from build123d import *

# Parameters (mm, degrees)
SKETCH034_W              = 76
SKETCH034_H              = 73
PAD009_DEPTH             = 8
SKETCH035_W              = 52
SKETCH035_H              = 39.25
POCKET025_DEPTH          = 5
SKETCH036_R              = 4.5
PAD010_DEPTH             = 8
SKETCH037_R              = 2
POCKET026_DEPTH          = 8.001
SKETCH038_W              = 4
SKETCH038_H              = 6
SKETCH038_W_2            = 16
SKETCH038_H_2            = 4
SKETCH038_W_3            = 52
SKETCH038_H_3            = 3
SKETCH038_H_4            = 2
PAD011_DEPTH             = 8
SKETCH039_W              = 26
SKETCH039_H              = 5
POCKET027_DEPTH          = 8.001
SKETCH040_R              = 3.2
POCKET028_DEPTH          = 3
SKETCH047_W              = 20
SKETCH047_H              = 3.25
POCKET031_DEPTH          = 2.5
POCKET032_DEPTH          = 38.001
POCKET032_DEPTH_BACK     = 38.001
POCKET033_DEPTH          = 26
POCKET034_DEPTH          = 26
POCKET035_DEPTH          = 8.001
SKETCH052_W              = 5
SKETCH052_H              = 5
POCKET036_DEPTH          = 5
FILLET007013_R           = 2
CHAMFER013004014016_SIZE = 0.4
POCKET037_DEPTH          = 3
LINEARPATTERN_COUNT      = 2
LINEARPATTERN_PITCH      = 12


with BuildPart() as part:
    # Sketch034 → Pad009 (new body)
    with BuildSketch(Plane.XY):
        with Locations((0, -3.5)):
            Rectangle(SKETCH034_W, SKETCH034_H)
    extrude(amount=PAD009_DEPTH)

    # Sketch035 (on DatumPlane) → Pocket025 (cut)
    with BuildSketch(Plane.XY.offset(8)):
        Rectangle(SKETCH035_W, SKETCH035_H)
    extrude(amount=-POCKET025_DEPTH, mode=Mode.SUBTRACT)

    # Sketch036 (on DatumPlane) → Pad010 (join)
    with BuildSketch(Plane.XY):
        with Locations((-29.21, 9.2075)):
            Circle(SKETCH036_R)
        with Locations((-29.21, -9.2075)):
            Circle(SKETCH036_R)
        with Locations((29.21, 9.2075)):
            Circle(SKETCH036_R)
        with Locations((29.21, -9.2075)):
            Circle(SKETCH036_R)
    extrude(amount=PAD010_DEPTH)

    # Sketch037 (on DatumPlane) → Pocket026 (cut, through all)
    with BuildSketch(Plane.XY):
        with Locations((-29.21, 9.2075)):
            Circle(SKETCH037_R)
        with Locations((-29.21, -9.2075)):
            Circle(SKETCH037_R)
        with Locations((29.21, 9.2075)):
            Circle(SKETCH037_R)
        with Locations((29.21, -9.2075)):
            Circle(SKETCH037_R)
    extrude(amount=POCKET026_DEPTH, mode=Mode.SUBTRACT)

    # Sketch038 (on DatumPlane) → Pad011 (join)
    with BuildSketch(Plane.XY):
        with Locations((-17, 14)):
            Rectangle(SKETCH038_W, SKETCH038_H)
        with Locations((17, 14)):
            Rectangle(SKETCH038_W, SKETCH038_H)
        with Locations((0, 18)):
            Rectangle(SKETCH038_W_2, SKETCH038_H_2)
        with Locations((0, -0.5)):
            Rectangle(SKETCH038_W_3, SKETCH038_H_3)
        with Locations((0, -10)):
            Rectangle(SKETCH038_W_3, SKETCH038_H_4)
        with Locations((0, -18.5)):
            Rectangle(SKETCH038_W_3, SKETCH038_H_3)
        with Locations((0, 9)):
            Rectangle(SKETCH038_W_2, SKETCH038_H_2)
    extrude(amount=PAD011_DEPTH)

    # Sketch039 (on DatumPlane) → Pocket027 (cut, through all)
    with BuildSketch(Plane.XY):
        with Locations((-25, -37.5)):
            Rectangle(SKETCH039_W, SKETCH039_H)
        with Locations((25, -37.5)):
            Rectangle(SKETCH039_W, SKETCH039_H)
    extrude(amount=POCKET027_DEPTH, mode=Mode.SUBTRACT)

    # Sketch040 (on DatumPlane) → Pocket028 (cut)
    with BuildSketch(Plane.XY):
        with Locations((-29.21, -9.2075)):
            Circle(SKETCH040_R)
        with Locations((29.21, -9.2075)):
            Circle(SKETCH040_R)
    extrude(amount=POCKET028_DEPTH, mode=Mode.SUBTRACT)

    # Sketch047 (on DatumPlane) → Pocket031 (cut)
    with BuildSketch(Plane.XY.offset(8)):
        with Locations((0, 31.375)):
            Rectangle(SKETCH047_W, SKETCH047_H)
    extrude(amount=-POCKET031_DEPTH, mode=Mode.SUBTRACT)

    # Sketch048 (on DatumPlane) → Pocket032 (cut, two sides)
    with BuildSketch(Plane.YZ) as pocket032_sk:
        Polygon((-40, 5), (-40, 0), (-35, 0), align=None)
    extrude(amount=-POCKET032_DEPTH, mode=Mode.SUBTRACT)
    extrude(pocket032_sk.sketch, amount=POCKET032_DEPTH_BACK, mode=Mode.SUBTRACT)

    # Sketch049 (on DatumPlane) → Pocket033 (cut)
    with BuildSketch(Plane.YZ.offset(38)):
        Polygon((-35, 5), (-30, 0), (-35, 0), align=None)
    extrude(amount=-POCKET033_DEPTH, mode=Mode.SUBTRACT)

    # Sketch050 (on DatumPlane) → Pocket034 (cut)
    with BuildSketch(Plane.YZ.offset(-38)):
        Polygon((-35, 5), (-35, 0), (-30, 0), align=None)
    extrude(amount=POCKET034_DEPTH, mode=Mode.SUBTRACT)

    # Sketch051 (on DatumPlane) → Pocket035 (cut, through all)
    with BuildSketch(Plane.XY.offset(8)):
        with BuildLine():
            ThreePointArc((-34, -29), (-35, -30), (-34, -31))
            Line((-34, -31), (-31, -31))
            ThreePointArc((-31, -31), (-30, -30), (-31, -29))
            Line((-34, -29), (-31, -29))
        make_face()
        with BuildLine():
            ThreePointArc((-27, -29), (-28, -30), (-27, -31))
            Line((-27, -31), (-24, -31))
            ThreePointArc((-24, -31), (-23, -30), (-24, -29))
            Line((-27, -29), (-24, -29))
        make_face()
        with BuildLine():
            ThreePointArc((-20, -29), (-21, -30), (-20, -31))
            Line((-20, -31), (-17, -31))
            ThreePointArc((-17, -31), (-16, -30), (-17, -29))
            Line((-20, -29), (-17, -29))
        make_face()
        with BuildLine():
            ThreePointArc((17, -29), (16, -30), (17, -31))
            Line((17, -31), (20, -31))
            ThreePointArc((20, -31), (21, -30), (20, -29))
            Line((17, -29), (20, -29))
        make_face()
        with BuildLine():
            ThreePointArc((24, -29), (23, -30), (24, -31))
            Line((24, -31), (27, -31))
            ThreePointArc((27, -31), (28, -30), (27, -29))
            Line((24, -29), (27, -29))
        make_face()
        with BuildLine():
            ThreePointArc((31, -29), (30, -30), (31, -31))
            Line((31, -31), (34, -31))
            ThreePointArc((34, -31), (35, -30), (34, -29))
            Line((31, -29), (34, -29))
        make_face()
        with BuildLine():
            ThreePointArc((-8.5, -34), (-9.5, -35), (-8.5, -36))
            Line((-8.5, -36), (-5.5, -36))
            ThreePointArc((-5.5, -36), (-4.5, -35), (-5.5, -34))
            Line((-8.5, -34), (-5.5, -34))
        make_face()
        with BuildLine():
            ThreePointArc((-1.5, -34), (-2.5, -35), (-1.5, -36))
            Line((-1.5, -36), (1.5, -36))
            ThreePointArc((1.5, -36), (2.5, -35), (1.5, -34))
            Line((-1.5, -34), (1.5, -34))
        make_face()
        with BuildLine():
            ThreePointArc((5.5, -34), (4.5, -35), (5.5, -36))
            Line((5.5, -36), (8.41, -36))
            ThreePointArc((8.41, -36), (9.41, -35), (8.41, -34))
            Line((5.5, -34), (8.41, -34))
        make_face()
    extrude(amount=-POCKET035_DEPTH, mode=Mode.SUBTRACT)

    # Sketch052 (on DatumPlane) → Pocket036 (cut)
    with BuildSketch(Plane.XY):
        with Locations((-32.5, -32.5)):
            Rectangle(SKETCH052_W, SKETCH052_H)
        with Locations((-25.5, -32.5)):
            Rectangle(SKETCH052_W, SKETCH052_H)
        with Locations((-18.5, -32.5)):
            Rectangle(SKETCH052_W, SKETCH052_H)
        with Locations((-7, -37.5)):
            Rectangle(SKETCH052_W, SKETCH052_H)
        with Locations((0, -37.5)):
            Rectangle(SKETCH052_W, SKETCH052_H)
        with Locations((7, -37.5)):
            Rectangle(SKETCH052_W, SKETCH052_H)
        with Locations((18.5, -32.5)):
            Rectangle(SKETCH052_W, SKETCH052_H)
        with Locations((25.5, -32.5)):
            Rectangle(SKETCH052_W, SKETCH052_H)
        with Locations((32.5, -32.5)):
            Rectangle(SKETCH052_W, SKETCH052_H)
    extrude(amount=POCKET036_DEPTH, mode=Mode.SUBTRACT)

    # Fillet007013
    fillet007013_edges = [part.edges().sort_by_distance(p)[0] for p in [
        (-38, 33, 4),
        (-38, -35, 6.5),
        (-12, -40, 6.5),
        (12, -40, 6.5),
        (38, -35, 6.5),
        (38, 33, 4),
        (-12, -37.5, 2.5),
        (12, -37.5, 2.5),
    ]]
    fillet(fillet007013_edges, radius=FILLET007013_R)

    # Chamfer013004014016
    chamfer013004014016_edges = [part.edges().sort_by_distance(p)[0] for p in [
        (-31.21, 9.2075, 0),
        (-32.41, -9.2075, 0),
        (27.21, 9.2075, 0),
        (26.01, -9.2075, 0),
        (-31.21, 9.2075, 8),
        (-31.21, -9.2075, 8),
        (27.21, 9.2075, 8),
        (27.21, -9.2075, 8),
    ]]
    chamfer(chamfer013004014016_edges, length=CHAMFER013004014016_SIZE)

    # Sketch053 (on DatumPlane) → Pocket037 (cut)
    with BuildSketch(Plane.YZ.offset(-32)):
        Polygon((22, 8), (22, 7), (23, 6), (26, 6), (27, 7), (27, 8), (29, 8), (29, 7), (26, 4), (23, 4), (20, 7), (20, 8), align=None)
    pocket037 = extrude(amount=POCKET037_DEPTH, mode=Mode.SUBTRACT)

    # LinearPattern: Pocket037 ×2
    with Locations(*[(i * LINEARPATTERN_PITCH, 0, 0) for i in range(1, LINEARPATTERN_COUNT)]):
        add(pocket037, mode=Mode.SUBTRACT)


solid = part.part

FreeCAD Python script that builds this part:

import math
import FreeCAD as App
import Part
import Sketcher


def edges_at(feature, points):
    """Names of the edges that pass closest to the given points."""
    edges = feature.Shape.Edges
    near = lambda p: min(range(len(edges)), key=lambda i: edges[i].distToShape(Part.Vertex(*p))[0])
    return sorted({f"Edge{near(p) + 1}" for p in points})


def add_polygon(sketch, points):
    """Adds a closed chain of lines whose ends are joined by coincident constraints."""
    first, n = sketch.GeometryCount, len(points)
    for a, b in zip(points, points[1:] + points[:1]):
        sketch.addGeometry(Part.LineSegment(App.Vector(*a, 0), App.Vector(*b, 0)), False)
    for i in range(n):
        sketch.addConstraint(Sketcher.Constraint("Coincident", first + i, 2, first + (i + 1) % n, 1))

doc = App.newDocument("Part")
body = doc.addObject("PartDesign::Body", "Body")

sketch1 = body.newObject("Sketcher::SketchObject", "Sketch")
sketch1.AttachmentSupport = (doc.getObject("XY_Plane"), [""])
sketch1.MapMode = "FlatFace"
add_polygon(sketch1, [(-38, 33), (-38, -40), (38, -40), (38, 33)])
sketch1.addConstraint([
    Sketcher.Constraint("Vertical", 0),
    Sketcher.Constraint("Horizontal", 1),
    Sketcher.Constraint("Vertical", 2),
    Sketcher.Constraint("Horizontal", 3),
    Sketcher.Constraint("DistanceX", 1, 1, 1, 2, 76.0),
    Sketcher.Constraint("DistanceY", 0, 2, 0, 1, 73.0),
    Sketcher.Constraint("DistanceX", 0, 2, -1, 1, 38.0),
    Sketcher.Constraint("DistanceY", 0, 2, -1, 1, 40.0),
])
pad1 = body.newObject("PartDesign::Pad", "Pad")
pad1.Profile = sketch1
pad1.Length = 8

sketch2 = body.newObject("Sketcher::SketchObject", "Sketch001")
sketch2.AttachmentSupport = (doc.getObject("XY_Plane"), [""])
sketch2.MapMode = "FlatFace"
sketch2.AttachmentOffset = App.Placement(App.Vector(0, 0, 8), App.Rotation())
add_polygon(sketch2, [(-26, 20), (-26, -20), (26, -20), (26, 20)])
sketch2.addConstraint([
    Sketcher.Constraint("Vertical", 0),
    Sketcher.Constraint("Horizontal", 1),
    Sketcher.Constraint("Vertical", 2),
    Sketcher.Constraint("Horizontal", 3),
    Sketcher.Constraint("Symmetric", 0, 2, 2, 2, -1, 1),
    Sketcher.Constraint("DistanceX", 1, 1, 1, 2, 52.0),
    Sketcher.Constraint("DistanceY", 0, 2, 0, 1, 39.25),
])
pocket1 = body.newObject("PartDesign::Pocket", "Pocket")
pocket1.Profile = sketch2
pocket1.Length = 5

sketch3 = body.newObject("Sketcher::SketchObject", "Sketch002")
sketch3.AttachmentSupport = (doc.getObject("XY_Plane"), [""])
sketch3.MapMode = "FlatFace"
sketch3.addGeometry([
    Part.Circle(App.Vector(-29.2, 9.2, 0), App.Vector(0, 0, 1), 4.5),
    Part.Circle(App.Vector(-29.2, -9.2, 0), App.Vector(0, 0, 1), 4.5),
    Part.Circle(App.Vector(29.2, 9.2, 0), App.Vector(0, 0, 1), 4.5),
    Part.Circle(App.Vector(29.2, -9.2, 0), App.Vector(0, 0, 1), 4.5),
], False)
sketch3.addConstraint([
    Sketcher.Constraint("Equal", 0, 1),
    Sketcher.Constraint("Equal", 1, 2),
    Sketcher.Constraint("Equal", 2, 3),
    Sketcher.Constraint("Symmetric", 1, 3, 2, 3, -1, 1),
    Sketcher.Constraint("Symmetric", 0, 3, 3, 3, -1, 1),
    Sketcher.Constraint("Symmetric", 0, 3, 2, 3, -2),
    Sketcher.Constraint("Diameter", 0, 9.0),
    Sketcher.Constraint("DistanceX", 0, 3, -1, 1, 29.21),
    Sketcher.Constraint("DistanceY", 1, 3, 0, 3, 18.415),
])
pad2 = body.newObject("PartDesign::Pad", "Pad001")
pad2.Profile = sketch3
pad2.Length = 8

sketch4 = body.newObject("Sketcher::SketchObject", "Sketch003")
sketch4.AttachmentSupport = (doc.getObject("XY_Plane"), [""])
sketch4.MapMode = "FlatFace"
sketch4.addGeometry([
    Part.Circle(App.Vector(-29.2, 9.2, 0), App.Vector(0, 0, 1), 2),
    Part.Circle(App.Vector(-29.2, -9.2, 0), App.Vector(0, 0, 1), 2),
    Part.Circle(App.Vector(29.2, 9.2, 0), App.Vector(0, 0, 1), 2),
    Part.Circle(App.Vector(29.2, -9.2, 0), App.Vector(0, 0, 1), 2),
], False)
sketch4.addConstraint([
    Sketcher.Constraint("Equal", 0, 1),
    Sketcher.Constraint("Equal", 1, 2),
    Sketcher.Constraint("Equal", 2, 3),
    Sketcher.Constraint("Symmetric", 1, 3, 2, 3, -1, 1),
    Sketcher.Constraint("Symmetric", 0, 3, 3, 3, -1, 1),
    Sketcher.Constraint("Symmetric", 0, 3, 2, 3, -2),
    Sketcher.Constraint("Diameter", 0, 4.0),
    Sketcher.Constraint("DistanceX", 0, 3, -1, 1, 29.21),
    Sketcher.Constraint("DistanceY", 1, 3, 0, 3, 18.415),
])
pocket2 = body.newObject("PartDesign::Pocket", "Pocket001")
pocket2.Profile = sketch4
pocket2.Type = "ThroughAll"
pocket2.Reversed = True

sketch5 = body.newObject("Sketcher::SketchObject", "Sketch004")
sketch5.AttachmentSupport = (doc.getObject("XY_Plane"), [""])
sketch5.MapMode = "FlatFace"
add_polygon(sketch5, [(-19, 17), (-19, 11), (-15, 11), (-15, 17)])
add_polygon(sketch5, [(15, 17), (15, 11), (19, 11), (19, 17)])
add_polygon(sketch5, [(-8, 20), (-8, 16), (8, 16), (8, 20)])
add_polygon(sketch5, [(-26, 1), (-26, -2), (26, -2), (26, 1)])
add_polygon(sketch5, [(-26, -9), (-26, -11), (26, -11), (26, -9)])
add_polygon(sketch5, [(-26, -17), (-26, -20), (26, -20), (26, -17)])
add_polygon(sketch5, [(-8, 11), (-8, 7), (8, 7), (8, 11)])
sketch5.addConstraint([
    Sketcher.Constraint("Vertical", 0),
    Sketcher.Constraint("Horizontal", 1),
    Sketcher.Constraint("Vertical", 2),
    Sketcher.Constraint("Horizontal", 3),
    Sketcher.Constraint("Vertical", 4),
    Sketcher.Constraint("Horizontal", 5),
    Sketcher.Constraint("Vertical", 6),
    Sketcher.Constraint("Horizontal", 7),
    Sketcher.Constraint("Vertical", 8),
    Sketcher.Constraint("Horizontal", 9),
    Sketcher.Constraint("Vertical", 10),
    Sketcher.Constraint("Horizontal", 11),
    Sketcher.Constraint("Vertical", 12),
    Sketcher.Constraint("Horizontal", 13),
    Sketcher.Constraint("Vertical", 14),
    Sketcher.Constraint("Horizontal", 15),
    Sketcher.Constraint("Vertical", 16),
    Sketcher.Constraint("Horizontal", 17),
    Sketcher.Constraint("Vertical", 18),
    Sketcher.Constraint("Horizontal", 19),
    Sketcher.Constraint("Vertical", 20),
    Sketcher.Constraint("Horizontal", 21),
    Sketcher.Constraint("Vertical", 22),
    Sketcher.Constraint("Horizontal", 23),
    Sketcher.Constraint("Vertical", 24),
    Sketcher.Constraint("Horizontal", 25),
    Sketcher.Constraint("Vertical", 26),
    Sketcher.Constraint("Horizontal", 27),
    Sketcher.Constraint("Symmetric", 1, 2, 4, 2, -2),
    Sketcher.Constraint("Symmetric", 3, 2, 6, 2, -2),
    Sketcher.Constraint("Horizontal", 5, 2, 26, 2),
    Sketcher.Constraint("Vertical", 15, 2, 16, 2),
    Sketcher.Constraint("Vertical", 14, 2, 17, 2),
    Sketcher.Constraint("Vertical", 19, 2, 20, 2),
    Sketcher.Constraint("Vertical", 18, 2, 21, 2),
    Sketcher.Constraint("Vertical", 11, 2, 24, 2),
    Sketcher.Constraint("Vertical", 10, 2, 25, 2),
    Sketcher.Constraint("Equal", 7, 8),
    Sketcher.Constraint("Equal", 14, 20),
    Sketcher.Constraint("Equal", 10, 24),
    Sketcher.Constraint("DistanceX", 1, 1, 1, 2, 4.0),
    Sketcher.Constraint("DistanceX", 9, 1, 9, 2, 16.0),
    Sketcher.Constraint("DistanceX", 13, 1, 13, 2, 52.0),
    Sketcher.Constraint("DistanceY", 0, 2, 0, 1, 6.0),
    Sketcher.Constraint("DistanceY", 12, 2, 12, 1, 3.0),
    Sketcher.Constraint("DistanceY", 16, 2, 16, 1, 2.0),
    Sketcher.Constraint("DistanceX", 0, 2, -1, 1, 19.0),
    Sketcher.Constraint("DistanceY", -1, 1, 0, 2, 11.0),
    Sketcher.Constraint("DistanceX", 8, 2, -1, 1, 8.0),
    Sketcher.Constraint("DistanceY", -1, 1, 8, 2, 16.0),
    Sketcher.Constraint("DistanceX", 12, 2, -1, 1, 26.0),
    Sketcher.Constraint("DistanceY", 12, 2, -1, 1, 2.0),
    Sketcher.Constraint("DistanceY", 16, 2, -1, 1, 11.0),
    Sketcher.Constraint("DistanceY", 20, 2, -1, 1, 20.0),
])
pad3 = body.newObject("PartDesign::Pad", "Pad002")
pad3.Profile = sketch5
pad3.Length = 8

sketch6 = body.newObject("Sketcher::SketchObject", "Sketch005")
sketch6.AttachmentSupport = (doc.getObject("XY_Plane"), [""])
sketch6.MapMode = "FlatFace"
add_polygon(sketch6, [(-38, -35), (-38, -40), (-12, -40), (-12, -35)])
add_polygon(sketch6, [(12, -35), (12, -40), (38, -40), (38, -35)])
sketch6.addConstraint([
    Sketcher.Constraint("Vertical", 0),
    Sketcher.Constraint("Horizontal", 1),
    Sketcher.Constraint("Vertical", 2),
    Sketcher.Constraint("Horizontal", 3),
    Sketcher.Constraint("Vertical", 4),
    Sketcher.Constraint("Horizontal", 5),
    Sketcher.Constraint("Vertical", 6),
    Sketcher.Constraint("Horizontal", 7),
    Sketcher.Constraint("Symmetric", 1, 2, 4, 2, -2),
    Sketcher.Constraint("Symmetric", 3, 2, 6, 2, -2),
    Sketcher.Constraint("DistanceX", 1, 1, 1, 2, 26.0),
    Sketcher.Constraint("DistanceY", 0, 2, 0, 1, 5.0),
    Sketcher.Constraint("DistanceX", 0, 2, -1, 1, 38.0),
    Sketcher.Constraint("DistanceY", 0, 2, -1, 1, 40.0),
])
pocket3 = body.newObject("PartDesign::Pocket", "Pocket002")
pocket3.Profile = sketch6
pocket3.Type = "ThroughAll"
pocket3.Reversed = True

sketch7 = body.newObject("Sketcher::SketchObject", "Sketch006")
sketch7.AttachmentSupport = (doc.getObject("XY_Plane"), [""])
sketch7.MapMode = "FlatFace"
sketch7.addGeometry([
    Part.Circle(App.Vector(-29.2, -9.2, 0), App.Vector(0, 0, 1), 3.2),
    Part.Circle(App.Vector(29.2, -9.2, 0), App.Vector(0, 0, 1), 3.2),
], False)
sketch7.addConstraint([
    Sketcher.Constraint("Equal", 0, 1),
    Sketcher.Constraint("Symmetric", 0, 3, 1, 3, -2),
    Sketcher.Constraint("Diameter", 0, 6.4),
    Sketcher.Constraint("DistanceX", 0, 3, -1, 1, 29.21),
    Sketcher.Constraint("DistanceY", 0, 3, -1, 1, 9.2075),
])
pocket4 = body.newObject("PartDesign::Pocket", "Pocket003")
pocket4.Profile = sketch7
pocket4.Length = 3
pocket4.Reversed = True

sketch8 = body.newObject("Sketcher::SketchObject", "Sketch007")
sketch8.AttachmentSupport = (doc.getObject("XY_Plane"), [""])
sketch8.MapMode = "FlatFace"
sketch8.AttachmentOffset = App.Placement(App.Vector(0, 0, 8), App.Rotation())
add_polygon(sketch8, [(-10, 33), (-10, 29.8), (10, 29.8), (10, 33)])
sketch8.addConstraint([
    Sketcher.Constraint("Vertical", 0),
    Sketcher.Constraint("Horizontal", 1),
    Sketcher.Constraint("Vertical", 2),
    Sketcher.Constraint("Horizontal", 3),
    Sketcher.Constraint("DistanceX", 1, 1, 1, 2, 20.0),
    Sketcher.Constraint("DistanceX", 0, 2, -1, 1, 10.0),
    Sketcher.Constraint("DistanceY", -1, 1, 2, 2, 33.0),
    Sketcher.Constraint("DistanceY", 0, 2, 0, 1, 3.25),
])
pocket5 = body.newObject("PartDesign::Pocket", "Pocket004")
pocket5.Profile = sketch8
pocket5.Length = 2.5

sketch9 = body.newObject("Sketcher::SketchObject", "Sketch008")
sketch9.AttachmentSupport = (doc.getObject("YZ_Plane"), [""])
sketch9.MapMode = "FlatFace"
add_polygon(sketch9, [(-40, 5), (-40, 0), (-35, 0)])
sketch9.addConstraint([
    Sketcher.Constraint("Vertical", 0),
    Sketcher.Constraint("Horizontal", 1),
    Sketcher.Constraint("PointOnObject", 0, 2, -1),
    Sketcher.Constraint("Equal", 1, 0),
    Sketcher.Constraint("DistanceX", 1, 1, 1, 2, 5.0),
    Sketcher.Constraint("DistanceX", 0, 2, -1, 1, 40.0),
])
pocket6 = body.newObject("PartDesign::Pocket", "Pocket005")
pocket6.Profile = sketch9
pocket6.Type = "ThroughAll"
pocket6.Midplane = True

sketch10 = body.newObject("Sketcher::SketchObject", "Sketch009")
sketch10.AttachmentSupport = (doc.getObject("YZ_Plane"), [""])
sketch10.MapMode = "FlatFace"
sketch10.AttachmentOffset = App.Placement(App.Vector(0, 0, 38), App.Rotation())
add_polygon(sketch10, [(-30, 0), (-35, 5), (-35, 0)])
sketch10.addConstraint([
    Sketcher.Constraint("Vertical", 1),
    Sketcher.Constraint("Horizontal", 2),
    Sketcher.Constraint("PointOnObject", 1, 2, -1),
    Sketcher.Constraint("Equal", 2, 1),
    Sketcher.Constraint("DistanceX", 2, 1, 2, 2, 5.0),
    Sketcher.Constraint("DistanceX", 0, 2, -1, 1, 35.0),
])
pocket7 = body.newObject("PartDesign::Pocket", "Pocket006")
pocket7.Profile = sketch10
pocket7.Length = 26

sketch11 = body.newObject("Sketcher::SketchObject", "Sketch010")
sketch11.AttachmentSupport = (doc.getObject("YZ_Plane"), [""])
sketch11.MapMode = "FlatFace"
sketch11.AttachmentOffset = App.Placement(App.Vector(0, 0, -38), App.Rotation())
add_polygon(sketch11, [(-35, 5), (-35, 0), (-30, 0)])
sketch11.addConstraint([
    Sketcher.Constraint("Vertical", 0),
    Sketcher.Constraint("Horizontal", 1),
    Sketcher.Constraint("PointOnObject", 0, 2, -1),
    Sketcher.Constraint("Equal", 1, 0),
    Sketcher.Constraint("DistanceX", 1, 1, 1, 2, 5.0),
    Sketcher.Constraint("DistanceX", 0, 2, -1, 1, 35.0),
])
pocket8 = body.newObject("PartDesign::Pocket", "Pocket007")
pocket8.Profile = sketch11
pocket8.Length = 26
pocket8.Reversed = True

sketch12 = body.newObject("Sketcher::SketchObject", "Sketch011")
sketch12.AttachmentSupport = (doc.getObject("XY_Plane"), [""])
sketch12.MapMode = "FlatFace"
sketch12.AttachmentOffset = App.Placement(App.Vector(0, 0, 8), App.Rotation())
sketch12.addGeometry([
    Part.ArcOfCircle(Part.Circle(App.Vector(-34, -30, 0), App.Vector(0, 0, 1), 1), math.radians(90), math.radians(270)),
    Part.LineSegment(App.Vector(-34, -31, 0), App.Vector(-31, -31, 0)),
    Part.ArcOfCircle(Part.Circle(App.Vector(-31, -30, 0), App.Vector(0, 0, 1), 1), math.radians(-90), math.radians(90)),
    Part.LineSegment(App.Vector(-31, -29, 0), App.Vector(-34, -29, 0)),
    Part.ArcOfCircle(Part.Circle(App.Vector(-27, -30, 0), App.Vector(0, 0, 1), 1), math.radians(90), math.radians(270)),
    Part.LineSegment(App.Vector(-27, -31, 0), App.Vector(-24, -31, 0)),
    Part.ArcOfCircle(Part.Circle(App.Vector(-24, -30, 0), App.Vector(0, 0, 1), 1), math.radians(-90), math.radians(90)),
    Part.LineSegment(App.Vector(-24, -29, 0), App.Vector(-27, -29, 0)),
    Part.ArcOfCircle(Part.Circle(App.Vector(-20, -30, 0), App.Vector(0, 0, 1), 1), math.radians(90), math.radians(270)),
    Part.LineSegment(App.Vector(-20, -31, 0), App.Vector(-17, -31, 0)),
    Part.ArcOfCircle(Part.Circle(App.Vector(-17, -30, 0), App.Vector(0, 0, 1), 1), math.radians(-90), math.radians(90)),
    Part.LineSegment(App.Vector(-17, -29, 0), App.Vector(-20, -29, 0)),
    Part.ArcOfCircle(Part.Circle(App.Vector(17, -30, 0), App.Vector(0, 0, 1), 1), math.radians(90), math.radians(270)),
    Part.LineSegment(App.Vector(17, -31, 0), App.Vector(20, -31, 0)),
    Part.ArcOfCircle(Part.Circle(App.Vector(20, -30, 0), App.Vector(0, 0, 1), 1), math.radians(-90), math.radians(90)),
    Part.LineSegment(App.Vector(20, -29, 0), App.Vector(17, -29, 0)),
    Part.ArcOfCircle(Part.Circle(App.Vector(24, -30, 0), App.Vector(0, 0, 1), 1), math.radians(90), math.radians(270)),
    Part.LineSegment(App.Vector(24, -31, 0), App.Vector(27, -31, 0)),
    Part.ArcOfCircle(Part.Circle(App.Vector(27, -30, 0), App.Vector(0, 0, 1), 1), math.radians(-90), math.radians(90)),
    Part.LineSegment(App.Vector(27, -29, 0), App.Vector(24, -29, 0)),
    Part.ArcOfCircle(Part.Circle(App.Vector(31, -30, 0), App.Vector(0, 0, 1), 1), math.radians(90), math.radians(270)),
    Part.LineSegment(App.Vector(31, -31, 0), App.Vector(34, -31, 0)),
    Part.ArcOfCircle(Part.Circle(App.Vector(34, -30, 0), App.Vector(0, 0, 1), 1), math.radians(-90), math.radians(90)),
    Part.LineSegment(App.Vector(34, -29, 0), App.Vector(31, -29, 0)),
    Part.ArcOfCircle(Part.Circle(App.Vector(-8.5, -35, 0), App.Vector(0, 0, 1), 1), math.radians(90), math.radians(270)),
    Part.LineSegment(App.Vector(-8.5, -36, 0), App.Vector(-5.5, -36, 0)),
    Part.ArcOfCircle(Part.Circle(App.Vector(-5.5, -35, 0), App.Vector(0, 0, 1), 1), math.radians(-90), math.radians(90)),
    Part.LineSegment(App.Vector(-5.5, -34, 0), App.Vector(-8.5, -34, 0)),
    Part.ArcOfCircle(Part.Circle(App.Vector(-1.5, -35, 0), App.Vector(0, 0, 1), 1), math.radians(90), math.radians(270)),
    Part.LineSegment(App.Vector(-1.5, -36, 0), App.Vector(1.5, -36, 0)),
    Part.ArcOfCircle(Part.Circle(App.Vector(1.5, -35, 0), App.Vector(0, 0, 1), 1), math.radians(-90), math.radians(90)),
    Part.LineSegment(App.Vector(1.5, -34, 0), App.Vector(-1.5, -34, 0)),
    Part.ArcOfCircle(Part.Circle(App.Vector(5.5, -35, 0), App.Vector(0, 0, 1), 1), math.radians(90), math.radians(270)),
    Part.LineSegment(App.Vector(5.5, -36, 0), App.Vector(8.4, -36, 0)),
    Part.ArcOfCircle(Part.Circle(App.Vector(8.4, -35, 0), App.Vector(0, 0, 1), 1), math.radians(-90), math.radians(90)),
    Part.LineSegment(App.Vector(8.4, -34, 0), App.Vector(5.5, -34, 0)),
], False)
sketch12.addConstraint([
    Sketcher.Constraint("Tangent", 0, 2, 1, 1),
    Sketcher.Constraint("Tangent", 1, 2, 2, 1),
    Sketcher.Constraint("Tangent", 2, 2, 3, 1),
    Sketcher.Constraint("Tangent", 3, 2, 0, 1),
    Sketcher.Constraint("Tangent", 4, 2, 5, 1),
    Sketcher.Constraint("Tangent", 5, 2, 6, 1),
    Sketcher.Constraint("Tangent", 6, 2, 7, 1),
    Sketcher.Constraint("Tangent", 7, 2, 4, 1),
    Sketcher.Constraint("Tangent", 8, 2, 9, 1),
    Sketcher.Constraint("Tangent", 9, 2, 10, 1),
    Sketcher.Constraint("Tangent", 10, 2, 11, 1),
    Sketcher.Constraint("Tangent", 11, 2, 8, 1),
    Sketcher.Constraint("Tangent", 12, 2, 13, 1),
    Sketcher.Constraint("Tangent", 13, 2, 14, 1),
    Sketcher.Constraint("Tangent", 14, 2, 15, 1),
    Sketcher.Constraint("Tangent", 15, 2, 12, 1),
    Sketcher.Constraint("Tangent", 16, 2, 17, 1),
    Sketcher.Constraint("Tangent", 17, 2, 18, 1),
    Sketcher.Constraint("Tangent", 18, 2, 19, 1),
    Sketcher.Constraint("Tangent", 19, 2, 16, 1),
    Sketcher.Constraint("Tangent", 20, 2, 21, 1),
    Sketcher.Constraint("Tangent", 21, 2, 22, 1),
    Sketcher.Constraint("Tangent", 22, 2, 23, 1),
    Sketcher.Constraint("Tangent", 23, 2, 20, 1),
    Sketcher.Constraint("Tangent", 24, 2, 25, 1),
    Sketcher.Constraint("Tangent", 25, 2, 26, 1),
    Sketcher.Constraint("Tangent", 26, 2, 27, 1),
    Sketcher.Constraint("Tangent", 27, 2, 24, 1),
    Sketcher.Constraint("Tangent", 28, 2, 29, 1),
    Sketcher.Constraint("Tangent", 29, 2, 30, 1),
    Sketcher.Constraint("Tangent", 30, 2, 31, 1),
    Sketcher.Constraint("Tangent", 31, 2, 28, 1),
    Sketcher.Constraint("Tangent", 32, 2, 33, 1),
    Sketcher.Constraint("Tangent", 33, 2, 34, 1),
    Sketcher.Constraint("Tangent", 34, 2, 35, 1),
    Sketcher.Constraint("Tangent", 35, 2, 32, 1),
    Sketcher.Constraint("Horizontal", 1),
    Sketcher.Constraint("Horizontal", 3),
    Sketcher.Constraint("Horizontal", 5),
    Sketcher.Constraint("Horizontal", 7),
    Sketcher.Constraint("Horizontal", 9),
    Sketcher.Constraint("Horizontal", 11),
    Sketcher.Constraint("Horizontal", 13),
    Sketcher.Constraint("Horizontal", 15),
    Sketcher.Constraint("Horizontal", 17),
    Sketcher.Constraint("Horizontal", 19),
    Sketcher.Constraint("Horizontal", 21),
    Sketcher.Constraint("Horizontal", 23),
    Sketcher.Constraint("Horizontal", 25),
    Sketcher.Constraint("Horizontal", 27),
    Sketcher.Constraint("Horizontal", 29),
    Sketcher.Constraint("Horizontal", 31),
    Sketcher.Constraint("Horizontal", 33),
    Sketcher.Constraint("Horizontal", 35),
    Sketcher.Constraint("Equal", 2, 4),
    Sketcher.Constraint("Equal", 6, 8),
    Sketcher.Constraint("Equal", 10, 12),
    Sketcher.Constraint("Equal", 14, 16),
    Sketcher.Constraint("Equal", 18, 20),
    Sketcher.Constraint("Equal", 22, 24),
    Sketcher.Constraint("Equal", 26, 28),
    Sketcher.Constraint("Equal", 30, 32),
    Sketcher.Constraint("Symmetric", 10, 3, 12, 3, -2),
    Sketcher.Constraint("Symmetric", 6, 3, 16, 3, -2),
    Sketcher.Constraint("Symmetric", 2, 3, 20, 3, -2),
    Sketcher.Constraint("Symmetric", 26, 3, 32, 3, -2),
    Sketcher.Constraint("Horizontal", 2, 3, 4, 3),
    Sketcher.Constraint("Horizontal", 6, 3, 8, 3),
    Sketcher.Constraint("Horizontal", 26, 3, 28, 3),
    Sketcher.Constraint("Equal", 3, 5),
    Sketcher.Constraint("Equal", 7, 9),
    Sketcher.Constraint("Equal", 11, 13),
    Sketcher.Constraint("Equal", 15, 17),
    Sketcher.Constraint("Equal", 19, 21),
    Sketcher.Constraint("Equal", 23, 25),
    Sketcher.Constraint("Equal", 27, 29),
    Sketcher.Constraint("Radius", 0, 1.0),
    Sketcher.Constraint("DistanceX", 1, 1, 1, 2, 3.0),
    Sketcher.Constraint("DistanceX", 0, 3, -1, 1, 34.0),
    Sketcher.Constraint("DistanceY", 0, 3, -1, 1, 30.0),
    Sketcher.Constraint("DistanceX", 4, 3, -1, 1, 27.0),
    Sketcher.Constraint("DistanceX", 8, 3, -1, 1, 20.0),
    Sketcher.Constraint("DistanceY", 24, 3, -1, 1, 35.0),
    Sketcher.Constraint("DistanceX", 26, 3, 28, 3, 4.0),
    Sketcher.Constraint("DistanceX", 30, 3, 32, 3, 4.0),
    Sketcher.Constraint("DistanceX", 33, 1, 33, 2, 2.91),
])
pocket9 = body.newObject("PartDesign::Pocket", "Pocket008")
pocket9.Profile = sketch12
pocket9.Type = "ThroughAll"

sketch13 = body.newObject("Sketcher::SketchObject", "Sketch012")
sketch13.AttachmentSupport = (doc.getObject("XY_Plane"), [""])
sketch13.MapMode = "FlatFace"
add_polygon(sketch13, [(-35, -30), (-35, -35), (-30, -35), (-30, -30)])
add_polygon(sketch13, [(-28, -30), (-28, -35), (-23, -35), (-23, -30)])
add_polygon(sketch13, [(-21, -30), (-21, -35), (-16, -35), (-16, -30)])
add_polygon(sketch13, [(-10, -35), (-10, -40), (-4, -40), (-4, -35)])
add_polygon(sketch13, [(-2, -35), (-2, -40), (2, -40), (2, -35)])
add_polygon(sketch13, [(4, -35), (4, -40), (10, -40), (10, -35)])
add_polygon(sketch13, [(16, -30), (16, -35), (21, -35), (21, -30)])
add_polygon(sketch13, [(23, -30), (23, -35), (28, -35), (28, -30)])
add_polygon(sketch13, [(30, -30), (30, -35), (35, -35), (35, -30)])
sketch13.addConstraint([
    Sketcher.Constraint("Vertical", 0),
    Sketcher.Constraint("Horizontal", 1),
    Sketcher.Constraint("Vertical", 2),
    Sketcher.Constraint("Horizontal", 3),
    Sketcher.Constraint("Vertical", 4),
    Sketcher.Constraint("Horizontal", 5),
    Sketcher.Constraint("Vertical", 6),
    Sketcher.Constraint("Horizontal", 7),
    Sketcher.Constraint("Vertical", 8),
    Sketcher.Constraint("Horizontal", 9),
    Sketcher.Constraint("Vertical", 10),
    Sketcher.Constraint("Horizontal", 11),
    Sketcher.Constraint("Vertical", 12),
    Sketcher.Constraint("Horizontal", 13),
    Sketcher.Constraint("Vertical", 14),
    Sketcher.Constraint("Horizontal", 15),
    Sketcher.Constraint("Vertical", 16),
    Sketcher.Constraint("Horizontal", 17),
    Sketcher.Constraint("Vertical", 18),
    Sketcher.Constraint("Horizontal", 19),
    Sketcher.Constraint("Vertical", 20),
    Sketcher.Constraint("Horizontal", 21),
    Sketcher.Constraint("Vertical", 22),
    Sketcher.Constraint("Horizontal", 23),
    Sketcher.Constraint("Vertical", 24),
    Sketcher.Constraint("Horizontal", 25),
    Sketcher.Constraint("Vertical", 26),
    Sketcher.Constraint("Horizontal", 27),
    Sketcher.Constraint("Vertical", 28),
    Sketcher.Constraint("Horizontal", 29),
    Sketcher.Constraint("Vertical", 30),
    Sketcher.Constraint("Horizontal", 31),
    Sketcher.Constraint("Vertical", 32),
    Sketcher.Constraint("Horizontal", 33),
    Sketcher.Constraint("Vertical", 34),
    Sketcher.Constraint("Horizontal", 35),
    Sketcher.Constraint("Symmetric", 13, 2, 20, 2, -2),
    Sketcher.Constraint("Symmetric", 15, 2, 22, 2, -2),
    Sketcher.Constraint("Symmetric", 9, 2, 24, 2, -2),
    Sketcher.Constraint("Symmetric", 11, 2, 26, 2, -2),
    Sketcher.Constraint("Symmetric", 5, 2, 28, 2, -2),
    Sketcher.Constraint("Symmetric", 7, 2, 30, 2, -2),
    Sketcher.Constraint("Symmetric", 1, 2, 32, 2, -2),
    Sketcher.Constraint("Symmetric", 3, 2, 34, 2, -2),
    Sketcher.Constraint("Horizontal", 1, 2, 4, 2),
    Sketcher.Constraint("Horizontal", 3, 2, 6, 2),
    Sketcher.Constraint("Horizontal", 5, 2, 8, 2),
    Sketcher.Constraint("Horizontal", 7, 2, 10, 2),
    Sketcher.Constraint("Horizontal", 9, 2, 14, 2),
    Sketcher.Constraint("Horizontal", 13, 2, 16, 2),
    Sketcher.Constraint("Horizontal", 15, 2, 18, 2),
    Sketcher.Constraint("Equal", 3, 5),
    Sketcher.Constraint("Equal", 7, 9),
    Sketcher.Constraint("Equal", 11, 13),
    Sketcher.Constraint("Equal", 15, 17),
    Sketcher.Constraint("Equal", 35, 0),
    Sketcher.Constraint("Equal", 10, 12),
    Sketcher.Constraint("DistanceX", 1, 1, 1, 2, 5.0),
    Sketcher.Constraint("DistanceX", 0, 2, -1, 1, 35.0),
    Sketcher.Constraint("DistanceY", 0, 2, -1, 1, 35.0),
    Sketcher.Constraint("DistanceX", 4, 2, -1, 1, 28.0),
    Sketcher.Constraint("DistanceX", 8, 2, -1, 1, 21.0),
    Sketcher.Constraint("DistanceX", 13, 2, 16, 2, 2.0),
    Sketcher.Constraint("DistanceX", 17, 2, 20, 2, 2.0),
])
pocket10 = body.newObject("PartDesign::Pocket", "Pocket009")
pocket10.Profile = sketch13
pocket10.Length = 5
pocket10.Reversed = True
doc.recompute()

fillet = body.newObject("PartDesign::Fillet", "Fillet")
fillet.Base = (pocket10, edges_at(pocket10, [
    (-38, 33, 4),
    (-38, -35, 6.5),
    (-12, -40, 6.5),
    (12, -40, 6.5),
    (38, -35, 6.5),
    (38, 33, 4),
    (-12, -37.5, 2.5),
    (12, -37.5, 2.5),
]))
fillet.Radius = 2
doc.recompute()

chamfer = body.newObject("PartDesign::Chamfer", "Chamfer")
chamfer.Base = (fillet, edges_at(fillet, [
    (-31.21, 9.207, 0),
    (-32.41, -9.207, 0),
    (27.21, 9.207, 0),
    (26.01, -9.207, 0),
    (-31.21, 9.207, 8),
    (-31.21, -9.207, 8),
    (27.21, 9.207, 8),
    (27.21, -9.207, 8),
]))
chamfer.Size = 0.4

sketch14 = body.newObject("Sketcher::SketchObject", "Sketch013")
sketch14.AttachmentSupport = (doc.getObject("YZ_Plane"), [""])
sketch14.MapMode = "FlatFace"
sketch14.AttachmentOffset = App.Placement(App.Vector(0, 0, -32), App.Rotation())
add_polygon(sketch14, [(22, 7), (22, 8), (20, 8), (20, 7), (23, 4), (26, 4), (29, 7), (29, 8), (27, 8), (27, 7), (26, 6), (23, 6)])
sketch14.addConstraint([
    Sketcher.Constraint("Vertical", 0),
    Sketcher.Constraint("Horizontal", 1),
    Sketcher.Constraint("Vertical", 2),
    Sketcher.Constraint("Horizontal", 4),
    Sketcher.Constraint("Vertical", 6),
    Sketcher.Constraint("Horizontal", 7),
    Sketcher.Constraint("Vertical", 8),
    Sketcher.Constraint("Horizontal", 10),
    Sketcher.Constraint("Perpendicular", 3, 5),
    Sketcher.Constraint("Parallel", 5, 9),
    Sketcher.Constraint("Perpendicular", 9, 11),
    Sketcher.Constraint("Horizontal", 2, 2, 5, 2),
    Sketcher.Constraint("Horizontal", 1, 2, 6, 2),
    Sketcher.Constraint("Horizontal", 5, 2, 8, 2),
    Sketcher.Constraint("Horizontal", 8, 2, 11, 2),
    Sketcher.Constraint("Vertical", 4, 2, 9, 2),
    Sketcher.Constraint("Vertical", 3, 2, 10, 2),
    Sketcher.Constraint("Equal", 1, 7),
    Sketcher.Constraint("DistanceX", 1, 2, 1, 1, 2.0),
    Sketcher.Constraint("DistanceX", 4, 1, 4, 2, 3.0),
    Sketcher.Constraint("DistanceY", 0, 1, 0, 2, 1.0),
    Sketcher.Constraint("DistanceX", -1, 1, 0, 2, 22.0),
    Sketcher.Constraint("DistanceY", -1, 1, 0, 2, 8.0),
    Sketcher.Constraint("DistanceX", -1, 1, 3, 2, 23.0),
])
pocket11 = body.newObject("PartDesign::Pocket", "Pocket010")
pocket11.Profile = sketch14
pocket11.Length = 3
pocket11.Reversed = True
doc.recompute()

linearpattern = body.newObject("PartDesign::LinearPattern", "LinearPattern")
linearpattern.Originals = [pocket11]
linearpattern.Direction = (doc.getObject("X_Axis"), [""])
linearpattern.Mode = "offset"
linearpattern.Offset = 12
linearpattern.Occurrences = 2
body.Tip = linearpattern

doc.recompute()
